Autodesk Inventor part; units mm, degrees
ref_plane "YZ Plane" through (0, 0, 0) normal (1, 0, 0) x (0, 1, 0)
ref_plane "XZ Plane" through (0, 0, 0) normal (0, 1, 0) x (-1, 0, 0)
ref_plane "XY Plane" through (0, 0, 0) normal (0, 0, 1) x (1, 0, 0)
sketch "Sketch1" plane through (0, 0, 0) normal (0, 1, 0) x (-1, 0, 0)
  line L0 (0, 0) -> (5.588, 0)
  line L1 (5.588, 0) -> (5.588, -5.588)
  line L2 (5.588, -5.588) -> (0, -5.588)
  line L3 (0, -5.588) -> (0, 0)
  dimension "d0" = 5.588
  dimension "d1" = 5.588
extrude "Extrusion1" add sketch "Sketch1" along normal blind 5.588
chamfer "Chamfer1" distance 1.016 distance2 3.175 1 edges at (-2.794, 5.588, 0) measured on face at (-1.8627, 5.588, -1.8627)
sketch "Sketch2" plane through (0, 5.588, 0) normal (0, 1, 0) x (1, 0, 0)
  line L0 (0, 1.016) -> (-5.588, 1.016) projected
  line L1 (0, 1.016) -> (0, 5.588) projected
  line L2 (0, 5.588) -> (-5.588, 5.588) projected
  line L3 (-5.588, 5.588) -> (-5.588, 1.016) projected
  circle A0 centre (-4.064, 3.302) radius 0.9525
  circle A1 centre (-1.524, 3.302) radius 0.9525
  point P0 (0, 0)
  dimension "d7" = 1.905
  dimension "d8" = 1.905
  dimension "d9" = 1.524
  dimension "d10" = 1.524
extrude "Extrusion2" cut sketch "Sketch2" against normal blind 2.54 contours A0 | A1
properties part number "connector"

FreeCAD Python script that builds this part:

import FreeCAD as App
import Part
import Sketcher
Q = App.Units.Quantity


def edges_at(feature, points):
    """Names of the edges that pass closest to the given points."""
    edges = feature.Shape.Edges
    near = lambda p: min(range(len(edges)), key=lambda i: edges[i].distToShape(Part.Vertex(*p))[0])
    return sorted({f"Edge{near(p) + 1}" for p in points})


def add_polygon(sketch, points):
    """Adds a closed chain of lines whose ends are joined by coincident constraints."""
    first, n = sketch.GeometryCount, len(points)
    for a, b in zip(points, points[1:] + points[:1]):
        sketch.addGeometry(Part.LineSegment(App.Vector(*a, 0), App.Vector(*b, 0)), False)
    for i in range(n):
        sketch.addConstraint(Sketcher.Constraint("Coincident", first + i, 2, first + (i + 1) % n, 1))

doc = App.newDocument("Part")
body = doc.addObject("PartDesign::Body", "Body")

# Sketch on XZ plane
sketch1 = doc.addObject("Sketcher::SketchObject", "Sketch")
body.addObject(sketch1)
sketch1.AttachmentSupport = (doc.XZ_Plane, [""])
sketch1.MapMode = "FlatFace"
add_polygon(sketch1, [(-6, 0), (0, 0), (0, -6), (-6, -6)])  # lines 0-3
sketch1.addConstraint([
    Sketcher.Constraint("Horizontal", 0),
    Sketcher.Constraint("Vertical", 1),
    Sketcher.Constraint("Horizontal", 2),
    Sketcher.Constraint("Vertical", 3),
    Sketcher.Constraint("Coincident", 0, 2, -1, 1),
    Sketcher.Constraint("Equal", 2, 1),
    Sketcher.Constraint("DistanceX", 0, 1, 0, 2, Q("0.22 in")),
])
pad1 = doc.addObject("PartDesign::Pad", "Pad")
body.addObject(pad1)
pad1.Profile = sketch1
pad1.Length = Q("0.22 in")
pad1.Reversed = True
doc.recompute()

chamfer = doc.addObject("PartDesign::Chamfer", "Chamfer")
body.addObject(chamfer)
chamfer.Base = (pad1, edges_at(pad1, [(-2.794, 5.588, 0)]))
chamfer.ChamferType = "Two distances"
chamfer.Size = Q("0.04 in")
chamfer.Size2 = Q("0.125 in")
chamfer.FlipDirection = True

# Sketch on XZ plane
sketch2 = doc.addObject("Sketcher::SketchObject", "Sketch001")
body.addObject(sketch2)
sketch2.AttachmentSupport = (doc.XZ_Plane, [""])
sketch2.MapMode = "FlatFace"
sketch2.AttachmentOffset = App.Placement(App.Vector(0, 0, -0.22 * 25.4), App.Rotation())
sketch2.addGeometry([
    Part.Circle(App.Vector(-4.1, -3.3, 0), App.Vector(0, 0, 1), 1),
    Part.Circle(App.Vector(-1.5, -3.3, 0), App.Vector(0, 0, 1), 1),
], False)
sketch2.addConstraint([
    Sketcher.Constraint("Equal", 0, 1),
    Sketcher.Constraint("Horizontal", 0, 3, 1, 3),
    Sketcher.Constraint("Diameter", 0, Q("0.075 in")),
    Sketcher.Constraint("DistanceX", 1, 3, -1, 1, Q("0.06 in")),
    Sketcher.Constraint("DistanceX", 0, 3, 1, 3, Q("0.1 in")),
    Sketcher.Constraint("DistanceY", 0, 3, -1, 1, Q("0.13 in")),
])
pocket1 = doc.addObject("PartDesign::Pocket", "Pocket")
body.addObject(pocket1)
pocket1.Profile = sketch2
pocket1.Length = Q("0.1 in")
pocket1.Reversed = True

doc.recompute()
